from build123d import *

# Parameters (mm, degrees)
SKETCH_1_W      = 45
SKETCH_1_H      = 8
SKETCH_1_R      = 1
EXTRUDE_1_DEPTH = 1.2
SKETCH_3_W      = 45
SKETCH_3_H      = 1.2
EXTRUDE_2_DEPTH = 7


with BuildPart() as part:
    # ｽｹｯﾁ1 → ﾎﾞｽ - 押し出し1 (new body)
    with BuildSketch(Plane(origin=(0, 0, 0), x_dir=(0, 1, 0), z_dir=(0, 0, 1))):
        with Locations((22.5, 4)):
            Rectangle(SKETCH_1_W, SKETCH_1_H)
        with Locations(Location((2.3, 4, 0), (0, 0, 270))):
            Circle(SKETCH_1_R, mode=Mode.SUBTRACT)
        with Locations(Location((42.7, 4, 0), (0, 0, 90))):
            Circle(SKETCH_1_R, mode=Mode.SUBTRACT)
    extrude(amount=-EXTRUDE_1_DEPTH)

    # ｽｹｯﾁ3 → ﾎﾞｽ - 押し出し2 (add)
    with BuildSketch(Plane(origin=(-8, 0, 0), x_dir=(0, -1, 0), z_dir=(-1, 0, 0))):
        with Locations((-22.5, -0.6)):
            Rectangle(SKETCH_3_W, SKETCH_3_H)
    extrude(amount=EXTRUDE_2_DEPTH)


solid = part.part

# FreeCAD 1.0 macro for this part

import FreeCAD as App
import Part
import Sketcher
from FreeCAD import Vector
Q = App.Units.Quantity


def add_polygon(sketch, points):
    """Adds a closed chain of lines whose ends are joined by coincident constraints."""
    first, n = sketch.GeometryCount, len(points)
    for a, b in zip(points, points[1:] + points[:1]):
        sketch.addGeometry(Part.LineSegment(App.Vector(*a, 0), App.Vector(*b, 0)), False)
    for i in range(n):
        sketch.addConstraint(Sketcher.Constraint("Coincident", first + i, 2, first + (i + 1) % n, 1))

doc = App.newDocument("Part")
body = doc.addObject("PartDesign::Body", "Body")

sketch1 = body.newObject("Sketcher::SketchObject", "Sketch")
sketch1.AttachmentSupport = (doc.getObject("XY_Plane"), [""])
sketch1.MapMode = "FlatFace"
add_polygon(sketch1, [(-8, 0), (0, 0), (0, 45), (-8, 45)])
sketch1.addGeometry(Part.Circle(Vector(-4, 2.3, 0), Vector(0, 0, 1), 1), False)
sketch1.addGeometry(Part.Circle(Vector(-4, 42.7, 0), Vector(0, 0, 1), 1), False)
sketch1.addConstraint(Sketcher.Constraint("Horizontal", 0))
sketch1.addConstraint(Sketcher.Constraint("Vertical", 1))
sketch1.addConstraint(Sketcher.Constraint("Horizontal", 2))
sketch1.addConstraint(Sketcher.Constraint("Vertical", 3))
sketch1.addConstraint(Sketcher.Constraint("Coincident", 0, 2, -1, 1))
sketch1.addConstraint(Sketcher.Constraint("Equal", 4, 5))
sketch1.addConstraint(Sketcher.Constraint("Vertical", 4, 3, 5, 3))
sketch1.addConstraint(Sketcher.Constraint("Diameter", 4, Q("2 mm")))
sketch1.addConstraint(Sketcher.Constraint("DistanceX", 0, 1, 0, 2, Q("8 mm")))
sketch1.addConstraint(Sketcher.Constraint("DistanceY", 1, 1, 1, 2, Q("45 mm")))
sketch1.addConstraint(Sketcher.Constraint("DistanceX", 4, 3, -1, 1, Q("4 mm")))
sketch1.addConstraint(Sketcher.Constraint("DistanceY", -1, 1, 4, 3, Q("2.3 mm")))
sketch1.addConstraint(Sketcher.Constraint("DistanceY", -1, 1, 5, 3, Q("42.7 mm")))
pad1 = body.newObject("PartDesign::Pad", "Pad")
pad1.Profile = sketch1
pad1.Length = 1.2
pad1.Reversed = True

sketch2 = body.newObject("Sketcher::SketchObject", "Sketch001")
sketch2.AttachmentSupport = (doc.getObject("YZ_Plane"), [""])
sketch2.MapMode = "FlatFace"
sketch2.AttachmentOffset = App.Placement(Vector(0, 0, -8), App.Rotation())
add_polygon(sketch2, [(45, 0), (45, -1.2), (0, -1.2), (0, 0)])
sketch2.addConstraint(Sketcher.Constraint("Vertical", 0))
sketch2.addConstraint(Sketcher.Constraint("Horizontal", 1))
sketch2.addConstraint(Sketcher.Constraint("Vertical", 2))
sketch2.addConstraint(Sketcher.Constraint("Horizontal", 3))
sketch2.addConstraint(Sketcher.Constraint("Coincident", 2, 2, -1, 1))
sketch2.addConstraint(Sketcher.Constraint("DistanceX", 1, 2, 1, 1, Q("45 mm")))
sketch2.addConstraint(Sketcher.Constraint("DistanceY", 0, 2, 0, 1, Q("1.2 mm")))
pad2 = body.newObject("PartDesign::Pad", "Pad001")
pad2.Profile = sketch2
pad2.Length = 7
pad2.Reversed = True

doc.recompute()
